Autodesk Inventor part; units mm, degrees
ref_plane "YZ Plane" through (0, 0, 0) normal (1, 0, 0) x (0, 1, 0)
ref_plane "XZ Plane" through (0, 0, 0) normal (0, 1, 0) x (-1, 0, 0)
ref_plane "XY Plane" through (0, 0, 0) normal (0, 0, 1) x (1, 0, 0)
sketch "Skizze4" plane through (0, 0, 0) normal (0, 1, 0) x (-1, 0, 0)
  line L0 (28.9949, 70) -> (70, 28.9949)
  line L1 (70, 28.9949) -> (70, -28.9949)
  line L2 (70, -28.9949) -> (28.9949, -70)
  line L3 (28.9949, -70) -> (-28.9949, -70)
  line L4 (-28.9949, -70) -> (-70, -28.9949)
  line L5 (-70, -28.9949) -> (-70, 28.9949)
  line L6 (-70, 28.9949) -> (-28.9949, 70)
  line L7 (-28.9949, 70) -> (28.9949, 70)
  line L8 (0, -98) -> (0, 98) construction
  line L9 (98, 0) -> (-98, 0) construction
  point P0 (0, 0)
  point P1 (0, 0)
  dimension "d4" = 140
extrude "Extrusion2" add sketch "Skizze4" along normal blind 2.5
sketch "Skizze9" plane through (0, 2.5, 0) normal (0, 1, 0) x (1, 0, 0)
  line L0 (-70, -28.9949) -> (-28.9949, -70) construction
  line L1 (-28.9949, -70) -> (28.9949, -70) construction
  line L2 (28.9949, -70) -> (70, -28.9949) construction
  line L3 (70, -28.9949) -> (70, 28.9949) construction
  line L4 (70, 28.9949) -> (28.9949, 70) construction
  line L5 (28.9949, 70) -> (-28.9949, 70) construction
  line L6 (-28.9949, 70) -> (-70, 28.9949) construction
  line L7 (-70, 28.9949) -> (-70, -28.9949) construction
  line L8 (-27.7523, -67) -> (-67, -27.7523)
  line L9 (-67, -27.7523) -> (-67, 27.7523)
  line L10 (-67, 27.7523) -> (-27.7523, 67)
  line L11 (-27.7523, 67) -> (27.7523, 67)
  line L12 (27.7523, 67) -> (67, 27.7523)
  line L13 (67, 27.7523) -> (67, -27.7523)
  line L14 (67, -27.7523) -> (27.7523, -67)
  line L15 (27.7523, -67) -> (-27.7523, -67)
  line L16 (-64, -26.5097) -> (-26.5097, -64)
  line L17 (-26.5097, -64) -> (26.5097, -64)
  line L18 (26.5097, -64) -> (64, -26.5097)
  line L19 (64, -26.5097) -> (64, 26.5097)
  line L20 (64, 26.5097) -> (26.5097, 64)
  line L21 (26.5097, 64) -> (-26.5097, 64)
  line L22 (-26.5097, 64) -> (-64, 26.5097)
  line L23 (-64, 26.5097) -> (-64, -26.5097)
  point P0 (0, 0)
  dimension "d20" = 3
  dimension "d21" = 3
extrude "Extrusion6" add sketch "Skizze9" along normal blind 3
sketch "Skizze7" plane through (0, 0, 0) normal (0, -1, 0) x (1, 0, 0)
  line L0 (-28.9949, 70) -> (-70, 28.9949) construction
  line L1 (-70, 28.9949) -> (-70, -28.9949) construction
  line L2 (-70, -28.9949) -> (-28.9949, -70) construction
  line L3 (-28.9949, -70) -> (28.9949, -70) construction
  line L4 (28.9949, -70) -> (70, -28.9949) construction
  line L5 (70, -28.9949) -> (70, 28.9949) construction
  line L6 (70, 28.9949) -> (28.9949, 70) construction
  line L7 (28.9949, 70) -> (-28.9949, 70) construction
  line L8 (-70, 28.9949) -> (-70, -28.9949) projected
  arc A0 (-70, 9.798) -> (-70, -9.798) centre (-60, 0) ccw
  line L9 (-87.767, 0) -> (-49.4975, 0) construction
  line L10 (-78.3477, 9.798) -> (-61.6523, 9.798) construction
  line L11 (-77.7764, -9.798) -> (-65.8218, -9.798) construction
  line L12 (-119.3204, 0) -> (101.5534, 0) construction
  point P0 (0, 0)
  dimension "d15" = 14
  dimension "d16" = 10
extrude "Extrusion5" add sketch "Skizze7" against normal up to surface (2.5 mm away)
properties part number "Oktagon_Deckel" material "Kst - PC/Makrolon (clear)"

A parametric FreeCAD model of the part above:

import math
import FreeCAD as App
import Part
import Sketcher
from FreeCAD import Vector
Q = App.Units.Quantity


def add_polygon(sketch, points):
    """Adds a closed chain of lines whose ends are joined by coincident constraints."""
    first, n = sketch.GeometryCount, len(points)
    for a, b in zip(points, points[1:] + points[:1]):
        sketch.addGeometry(Part.LineSegment(App.Vector(*a, 0), App.Vector(*b, 0)), False)
    for i in range(n):
        sketch.addConstraint(Sketcher.Constraint("Coincident", first + i, 2, first + (i + 1) % n, 1))

doc = App.newDocument("Part")
body = doc.addObject("PartDesign::Body", "Body")

sketch1 = body.newObject("Sketcher::SketchObject", "Sketch")
sketch1.AttachmentSupport = (doc.getObject("XZ_Plane"), [""])
sketch1.MapMode = "FlatFace"
add_polygon(sketch1, [(-70, 29), (-29, 70), (29, 70), (70, 29), (70, -29), (29, -70), (-29, -70), (-70, -29)])
sketch1.addConstraint(Sketcher.Constraint("Horizontal", 1))
sketch1.addConstraint(Sketcher.Constraint("Vertical", 3))
sketch1.addConstraint(Sketcher.Constraint("Horizontal", 5))
sketch1.addConstraint(Sketcher.Constraint("Vertical", 7))
sketch1.addConstraint(Sketcher.Constraint("Symmetric", 0, 2, 4, 2, -1, 1))
sketch1.addConstraint(Sketcher.Constraint("Symmetric", 2, 2, 6, 2, -1, 1))
sketch1.addConstraint(Sketcher.Constraint("Perpendicular", 0, 2))
sketch1.addConstraint(Sketcher.Constraint("Perpendicular", 2, 4))
sketch1.addConstraint(Sketcher.Constraint("Perpendicular", 4, 6))
sketch1.addConstraint(Sketcher.Constraint("Horizontal", 3, 2, 6, 2))
sketch1.addConstraint(Sketcher.Constraint("Vertical", 1, 2, 4, 2))
sketch1.addConstraint(Sketcher.Constraint("Equal", 5, 3))
sketch1.addConstraint(Sketcher.Constraint("DistanceY", 4, 2, 1, 2, Q("140 mm")))
sketch1.addConstraint(Sketcher.Constraint("Distance", 0, Q("57.99 mm")))
pad1 = body.newObject("PartDesign::Pad", "Pad")
pad1.Profile = sketch1
pad1.Length = 2.5
pad1.Reversed = True

sketch2 = body.newObject("Sketcher::SketchObject", "Sketch001")
sketch2.AttachmentSupport = (doc.getObject("XZ_Plane"), [""])
sketch2.MapMode = "FlatFace"
sketch2.AttachmentOffset = App.Placement(Vector(0, 0, -2.5), App.Rotation())
add_polygon(sketch2, [(-67, 28), (-28, 67), (28, 67), (67, 28), (67, -28), (28, -67), (-28, -67), (-67, -28)])
add_polygon(sketch2, [(-27, 64), (-64, 27), (-64, -27), (-27, -64), (27, -64), (64, -27), (64, 27), (27, 64)])
sketch2.addConstraint(Sketcher.Constraint("Horizontal", 1))
sketch2.addConstraint(Sketcher.Constraint("Vertical", 3))
sketch2.addConstraint(Sketcher.Constraint("Horizontal", 5))
sketch2.addConstraint(Sketcher.Constraint("Vertical", 7))
sketch2.addConstraint(Sketcher.Constraint("Vertical", 9))
sketch2.addConstraint(Sketcher.Constraint("Horizontal", 11))
sketch2.addConstraint(Sketcher.Constraint("Vertical", 13))
sketch2.addConstraint(Sketcher.Constraint("Horizontal", 15))
sketch2.addConstraint(Sketcher.Constraint("Symmetric", 0, 2, 4, 2, -1, 1))
sketch2.addConstraint(Sketcher.Constraint("Symmetric", 2, 2, 6, 2, -1, 1))
sketch2.addConstraint(Sketcher.Constraint("Symmetric", 8, 2, 12, 2, -1, 1))
sketch2.addConstraint(Sketcher.Constraint("Symmetric", 10, 2, 14, 2, -1, 1))
sketch2.addConstraint(Sketcher.Constraint("Perpendicular", 0, 2))
sketch2.addConstraint(Sketcher.Constraint("Perpendicular", 2, 4))
sketch2.addConstraint(Sketcher.Constraint("Perpendicular", 4, 6))
sketch2.addConstraint(Sketcher.Constraint("Perpendicular", 6, 8))
sketch2.addConstraint(Sketcher.Constraint("Perpendicular", 8, 10))
sketch2.addConstraint(Sketcher.Constraint("Perpendicular", 10, 12))
sketch2.addConstraint(Sketcher.Constraint("Perpendicular", 12, 14))
sketch2.addConstraint(Sketcher.Constraint("Horizontal", 3, 2, 6, 2))
sketch2.addConstraint(Sketcher.Constraint("Horizontal", 9, 2, 12, 2))
sketch2.addConstraint(Sketcher.Constraint("Vertical", 1, 2, 4, 2))
sketch2.addConstraint(Sketcher.Constraint("Equal", 5, 3))
sketch2.addConstraint(Sketcher.Constraint("Equal", 15, 9))
sketch2.addConstraint(Sketcher.Constraint("DistanceX", 7, 2, 8, 2, Q("3 mm")))
sketch2.addConstraint(Sketcher.Constraint("DistanceY", -1, 1, 0, 2, Q("67 mm")))
sketch2.addConstraint(Sketcher.Constraint("DistanceX", 1, 1, 1, 2, Q("55.5046 mm")))
sketch2.addConstraint(Sketcher.Constraint("DistanceX", 11, 1, 11, 2, Q("53.0194 mm")))
pad2 = body.newObject("PartDesign::Pad", "Pad001")
pad2.Profile = sketch2
pad2.Length = 3
pad2.Reversed = True

sketch3 = body.newObject("Sketcher::SketchObject", "Sketch002")
sketch3.AttachmentSupport = (doc.getObject("XZ_Plane"), [""])
sketch3.MapMode = "FlatFace"
sketch3.addGeometry(Part.LineSegment(Vector(-70, -10, 0), Vector(-70, 10, 0)), False)
sketch3.addGeometry(Part.ArcOfCircle(Part.Circle(Vector(-60, 0, 0), Vector(0, 0, 1), 14), math.radians(136), math.radians(224)), False)
sketch3.addConstraint(Sketcher.Constraint("Coincident", 0, 1, 1, 2))
sketch3.addConstraint(Sketcher.Constraint("Coincident", 1, 1, 0, 2))
sketch3.addConstraint(Sketcher.Constraint("Vertical", 0))
sketch3.addConstraint(Sketcher.Constraint("PointOnObject", 1, 3, -1))
sketch3.addConstraint(Sketcher.Constraint("Radius", 1, Q("14 mm")))
sketch3.addConstraint(Sketcher.Constraint("DistanceX", 0, 1, 1, 3, Q("10 mm")))
sketch3.addConstraint(Sketcher.Constraint("DistanceX", 1, 3, -1, 1, Q("60 mm")))
pad3 = body.newObject("PartDesign::Pad", "Pad002")
pad3.Profile = sketch3
pad3.Length = 2.5
pad3.Reversed = True

doc.recompute()
